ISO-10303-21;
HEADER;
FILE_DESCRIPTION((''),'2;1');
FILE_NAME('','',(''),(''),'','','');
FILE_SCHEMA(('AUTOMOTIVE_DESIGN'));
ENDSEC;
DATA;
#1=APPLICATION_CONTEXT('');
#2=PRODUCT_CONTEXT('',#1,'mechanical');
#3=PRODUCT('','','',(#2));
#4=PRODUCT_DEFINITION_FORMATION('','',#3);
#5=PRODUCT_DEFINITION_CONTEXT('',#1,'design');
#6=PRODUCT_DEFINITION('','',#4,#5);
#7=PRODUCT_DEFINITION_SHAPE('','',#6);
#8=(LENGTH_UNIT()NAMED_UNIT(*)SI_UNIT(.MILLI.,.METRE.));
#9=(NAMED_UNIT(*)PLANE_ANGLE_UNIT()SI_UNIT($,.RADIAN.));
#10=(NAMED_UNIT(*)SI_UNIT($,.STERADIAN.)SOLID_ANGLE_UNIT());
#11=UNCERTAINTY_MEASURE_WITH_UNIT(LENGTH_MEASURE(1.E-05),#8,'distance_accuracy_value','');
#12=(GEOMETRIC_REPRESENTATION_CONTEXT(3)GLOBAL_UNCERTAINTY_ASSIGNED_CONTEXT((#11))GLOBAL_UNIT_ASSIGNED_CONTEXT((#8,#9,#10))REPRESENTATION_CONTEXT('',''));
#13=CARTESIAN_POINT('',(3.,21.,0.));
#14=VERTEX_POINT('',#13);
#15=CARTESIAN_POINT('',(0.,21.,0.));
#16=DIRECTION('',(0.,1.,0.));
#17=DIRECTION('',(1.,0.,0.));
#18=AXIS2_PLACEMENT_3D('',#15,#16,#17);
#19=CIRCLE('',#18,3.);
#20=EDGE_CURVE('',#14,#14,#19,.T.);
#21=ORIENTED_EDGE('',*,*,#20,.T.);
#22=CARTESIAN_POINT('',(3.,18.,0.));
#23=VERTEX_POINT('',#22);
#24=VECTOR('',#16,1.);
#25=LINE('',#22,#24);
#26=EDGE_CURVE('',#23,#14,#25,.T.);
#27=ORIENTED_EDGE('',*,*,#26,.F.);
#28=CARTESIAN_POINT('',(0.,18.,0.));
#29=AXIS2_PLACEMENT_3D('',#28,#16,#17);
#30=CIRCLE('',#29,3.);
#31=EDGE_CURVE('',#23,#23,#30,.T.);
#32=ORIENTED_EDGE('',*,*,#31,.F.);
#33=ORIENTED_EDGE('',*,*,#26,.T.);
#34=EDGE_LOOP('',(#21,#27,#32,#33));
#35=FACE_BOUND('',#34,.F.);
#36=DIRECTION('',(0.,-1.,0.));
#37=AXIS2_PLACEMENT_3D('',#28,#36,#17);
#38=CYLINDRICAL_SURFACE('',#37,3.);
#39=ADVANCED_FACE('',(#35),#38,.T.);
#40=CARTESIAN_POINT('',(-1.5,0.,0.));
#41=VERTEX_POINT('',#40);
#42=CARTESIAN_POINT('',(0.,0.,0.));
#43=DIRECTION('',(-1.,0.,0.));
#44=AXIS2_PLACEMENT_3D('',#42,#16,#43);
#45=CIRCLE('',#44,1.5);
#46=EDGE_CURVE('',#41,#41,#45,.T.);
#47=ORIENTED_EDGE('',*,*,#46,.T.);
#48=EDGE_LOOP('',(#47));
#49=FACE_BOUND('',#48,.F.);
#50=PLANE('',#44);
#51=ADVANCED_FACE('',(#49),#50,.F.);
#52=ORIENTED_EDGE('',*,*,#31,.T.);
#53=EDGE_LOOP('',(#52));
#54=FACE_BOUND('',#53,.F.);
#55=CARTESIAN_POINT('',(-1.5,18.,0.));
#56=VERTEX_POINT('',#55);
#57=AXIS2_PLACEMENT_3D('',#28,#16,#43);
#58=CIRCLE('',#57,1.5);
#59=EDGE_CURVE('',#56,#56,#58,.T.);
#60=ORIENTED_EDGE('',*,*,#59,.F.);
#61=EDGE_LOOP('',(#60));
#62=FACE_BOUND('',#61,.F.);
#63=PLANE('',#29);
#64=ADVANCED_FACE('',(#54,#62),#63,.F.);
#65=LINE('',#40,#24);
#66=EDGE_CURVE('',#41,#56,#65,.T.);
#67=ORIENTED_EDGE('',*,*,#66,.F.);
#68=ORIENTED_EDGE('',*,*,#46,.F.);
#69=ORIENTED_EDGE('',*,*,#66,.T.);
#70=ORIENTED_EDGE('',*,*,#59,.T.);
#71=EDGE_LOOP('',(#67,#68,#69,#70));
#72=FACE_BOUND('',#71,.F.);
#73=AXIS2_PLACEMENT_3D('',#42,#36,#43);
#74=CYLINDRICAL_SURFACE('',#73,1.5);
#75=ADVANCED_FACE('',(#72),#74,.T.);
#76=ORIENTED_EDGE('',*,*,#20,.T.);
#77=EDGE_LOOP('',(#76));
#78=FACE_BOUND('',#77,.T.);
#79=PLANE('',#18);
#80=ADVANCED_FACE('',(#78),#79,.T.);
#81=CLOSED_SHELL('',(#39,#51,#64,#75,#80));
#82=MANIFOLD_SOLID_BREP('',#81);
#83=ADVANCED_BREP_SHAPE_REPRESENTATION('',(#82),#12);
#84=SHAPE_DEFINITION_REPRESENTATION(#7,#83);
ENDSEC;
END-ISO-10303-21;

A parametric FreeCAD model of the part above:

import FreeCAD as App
import Part
import Sketcher
Q = App.Units.Quantity

doc = App.newDocument("Part")
params = doc.addObject("Spreadsheet::Sheet", "Params")
for row, (alias, value) in enumerate([
    ("sketch1_diameter", "3 mm"),
    ("pad1_length", "18 mm"),
    ("sketch2_diameter", "6 mm"),
    ("pad2_length", "3 mm"),
], start=1):
    params.set(f"A{row}", alias)
    params.set(f"B{row}", "=" + value)
    params.setAlias(f"B{row}", alias)

body = doc.addObject("PartDesign::Body", "Body")

sketch1 = body.newObject("Sketcher::SketchObject", "Sketch")
sketch1.AttachmentSupport = (doc.getObject("XZ_Plane"), [""])
sketch1.MapMode = "FlatFace"
sketch1.addGeometry(Part.Circle(App.Vector(0, 0, 0), App.Vector(0, 0, 1), 1.5), False)
sketch1.addConstraint(Sketcher.Constraint("Coincident", 0, 3, -1, 1))
sketch1.addConstraint(Sketcher.Constraint("Diameter", 0, Q("3 mm")))
sketch1.setExpression("Constraints[1]", "Params.sketch1_diameter")
pad1 = body.newObject("PartDesign::Pad", "Pad")
pad1.Profile = sketch1
pad1.setExpression("Length", "Params.pad1_length")
pad1.Reversed = True

sketch2 = body.newObject("Sketcher::SketchObject", "Sketch001")
sketch2.AttachmentSupport = (doc.getObject("XZ_Plane"), [""])
sketch2.MapMode = "FlatFace"
sketch2.AttachmentOffset = App.Placement(App.Vector(0, 0, -18), App.Rotation())
sketch2.addGeometry(Part.Circle(App.Vector(0, 0, 0), App.Vector(0, 0, 1), 3), False)
sketch2.addConstraint(Sketcher.Constraint("Coincident", 0, 3, -1, 1))
sketch2.addConstraint(Sketcher.Constraint("Diameter", 0, Q("6 mm")))
sketch2.setExpression("Constraints[1]", "Params.sketch2_diameter")
pad2 = body.newObject("PartDesign::Pad", "Pad001")
pad2.Profile = sketch2
pad2.setExpression("Length", "Params.pad2_length")
pad2.Reversed = True

doc.recompute()
